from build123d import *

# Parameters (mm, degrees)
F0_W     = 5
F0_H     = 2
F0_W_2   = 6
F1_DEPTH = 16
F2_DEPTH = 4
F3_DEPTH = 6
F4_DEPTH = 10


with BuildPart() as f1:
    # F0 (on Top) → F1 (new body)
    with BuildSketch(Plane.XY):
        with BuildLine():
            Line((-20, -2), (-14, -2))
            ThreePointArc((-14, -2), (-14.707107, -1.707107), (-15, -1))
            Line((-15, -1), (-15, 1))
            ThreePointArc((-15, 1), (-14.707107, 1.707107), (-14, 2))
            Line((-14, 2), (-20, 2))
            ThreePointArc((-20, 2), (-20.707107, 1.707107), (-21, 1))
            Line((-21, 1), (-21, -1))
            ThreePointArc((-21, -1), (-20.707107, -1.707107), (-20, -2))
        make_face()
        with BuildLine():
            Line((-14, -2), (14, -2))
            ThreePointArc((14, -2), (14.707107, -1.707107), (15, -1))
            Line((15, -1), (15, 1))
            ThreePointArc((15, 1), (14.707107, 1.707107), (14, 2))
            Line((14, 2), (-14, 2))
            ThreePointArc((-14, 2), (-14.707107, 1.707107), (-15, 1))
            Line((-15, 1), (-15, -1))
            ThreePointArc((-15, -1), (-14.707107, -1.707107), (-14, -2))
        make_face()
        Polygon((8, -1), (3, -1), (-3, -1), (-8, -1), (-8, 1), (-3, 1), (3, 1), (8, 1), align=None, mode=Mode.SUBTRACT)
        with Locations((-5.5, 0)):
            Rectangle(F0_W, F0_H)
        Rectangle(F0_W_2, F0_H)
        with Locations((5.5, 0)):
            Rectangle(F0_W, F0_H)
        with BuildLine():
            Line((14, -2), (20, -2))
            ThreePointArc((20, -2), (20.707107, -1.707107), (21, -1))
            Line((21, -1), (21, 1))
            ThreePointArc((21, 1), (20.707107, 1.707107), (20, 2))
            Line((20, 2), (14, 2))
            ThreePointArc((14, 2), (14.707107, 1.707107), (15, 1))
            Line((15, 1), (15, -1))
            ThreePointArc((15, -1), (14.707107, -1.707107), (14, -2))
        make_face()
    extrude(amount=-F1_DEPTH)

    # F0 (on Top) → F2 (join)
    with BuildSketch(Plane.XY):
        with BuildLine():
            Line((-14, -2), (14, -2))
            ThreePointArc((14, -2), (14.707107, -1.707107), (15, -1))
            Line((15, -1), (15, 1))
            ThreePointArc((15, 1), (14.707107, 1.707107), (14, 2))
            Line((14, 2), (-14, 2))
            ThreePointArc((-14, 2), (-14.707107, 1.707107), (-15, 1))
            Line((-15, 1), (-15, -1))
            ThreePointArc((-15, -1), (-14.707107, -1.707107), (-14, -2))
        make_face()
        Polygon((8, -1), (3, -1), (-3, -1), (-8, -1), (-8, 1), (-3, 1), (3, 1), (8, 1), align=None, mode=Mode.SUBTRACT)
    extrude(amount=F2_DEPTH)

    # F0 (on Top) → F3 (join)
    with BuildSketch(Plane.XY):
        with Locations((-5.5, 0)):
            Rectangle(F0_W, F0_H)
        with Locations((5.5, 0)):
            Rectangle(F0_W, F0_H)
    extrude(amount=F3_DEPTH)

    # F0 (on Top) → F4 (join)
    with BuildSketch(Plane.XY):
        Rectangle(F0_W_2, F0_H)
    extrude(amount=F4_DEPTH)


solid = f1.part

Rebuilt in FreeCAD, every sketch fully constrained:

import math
import FreeCAD as App
import Part
import Sketcher
from FreeCAD import Vector

doc = App.newDocument("Part")
body = doc.addObject("PartDesign::Body", "Body")

sketch1 = body.newObject("Sketcher::SketchObject", "Sketch")
sketch1.AttachmentSupport = (doc.getObject("XY_Plane"), [""])
sketch1.MapMode = "FlatFace"
sketch1.addGeometry(Part.LineSegment(Vector(-20, -2, 0), Vector(20, -2, 0)), False)
sketch1.addGeometry(Part.ArcOfCircle(Part.Circle(Vector(20, -1, 0), Vector(0, 0, 1), 1), math.radians(-90), math.radians(0)), False)
sketch1.addGeometry(Part.LineSegment(Vector(21, -1, 0), Vector(21, 1, 0)), False)
sketch1.addGeometry(Part.ArcOfCircle(Part.Circle(Vector(20, 1, 0), Vector(0, 0, 1), 1), math.radians(0), math.radians(90)), False)
sketch1.addGeometry(Part.LineSegment(Vector(20, 2, 0), Vector(-20, 2, 0)), False)
sketch1.addGeometry(Part.ArcOfCircle(Part.Circle(Vector(-20, 1, 0), Vector(0, 0, 1), 1), math.radians(90), math.radians(180)), False)
sketch1.addGeometry(Part.LineSegment(Vector(-21, 1, 0), Vector(-21, -1, 0)), False)
sketch1.addGeometry(Part.ArcOfCircle(Part.Circle(Vector(-20, -1, 0), Vector(0, 0, 1), 1), math.radians(180), math.radians(270)), False)
sketch1.addConstraint(Sketcher.Constraint("Tangent", 0, 2, 1, 1))
sketch1.addConstraint(Sketcher.Constraint("Tangent", 1, 2, 2, 1))
sketch1.addConstraint(Sketcher.Constraint("Tangent", 2, 2, 3, 1))
sketch1.addConstraint(Sketcher.Constraint("Tangent", 3, 2, 4, 1))
sketch1.addConstraint(Sketcher.Constraint("Tangent", 4, 2, 5, 1))
sketch1.addConstraint(Sketcher.Constraint("Tangent", 5, 2, 6, 1))
sketch1.addConstraint(Sketcher.Constraint("Tangent", 6, 2, 7, 1))
sketch1.addConstraint(Sketcher.Constraint("Tangent", 7, 2, 0, 1))
sketch1.addConstraint(Sketcher.Constraint("Horizontal", 0))
sketch1.addConstraint(Sketcher.Constraint("Vertical", 2))
sketch1.addConstraint(Sketcher.Constraint("Horizontal", 4))
sketch1.addConstraint(Sketcher.Constraint("Vertical", 6))
sketch1.addConstraint(Sketcher.Constraint("Equal", 1, 3))
sketch1.addConstraint(Sketcher.Constraint("Equal", 3, 5))
sketch1.addConstraint(Sketcher.Constraint("Equal", 5, 7))
sketch1.addConstraint(Sketcher.Constraint("Symmetric", 1, 3, 5, 3, -1, 1))
sketch1.addConstraint(Sketcher.Constraint("Radius", 1, 0.999999))
sketch1.addConstraint(Sketcher.Constraint("DistanceX", 0, 1, 0, 2, 40.0))
sketch1.addConstraint(Sketcher.Constraint("DistanceY", 2, 1, 2, 2, 2.0))
pad1 = body.newObject("PartDesign::Pad", "Pad")
pad1.Profile = sketch1
pad1.Length = 16
pad1.Reversed = True

sketch2 = body.newObject("Sketcher::SketchObject", "Sketch001")
sketch2.AttachmentSupport = (doc.getObject("XY_Plane"), [""])
sketch2.MapMode = "FlatFace"
sketch2.addGeometry(Part.LineSegment(Vector(-14, -2, 0), Vector(14, -2, 0)), False)
sketch2.addGeometry(Part.ArcOfCircle(Part.Circle(Vector(14, -1, 0), Vector(0, 0, 1), 1), math.radians(-90), math.radians(0)), False)
sketch2.addGeometry(Part.LineSegment(Vector(15, -1, 0), Vector(15, 1, 0)), False)
sketch2.addGeometry(Part.ArcOfCircle(Part.Circle(Vector(14, 1, 0), Vector(0, 0, 1), 1), math.radians(0), math.radians(90)), False)
sketch2.addGeometry(Part.LineSegment(Vector(14, 2, 0), Vector(-14, 2, 0)), False)
sketch2.addGeometry(Part.ArcOfCircle(Part.Circle(Vector(-14, 1, 0), Vector(0, 0, 1), 1), math.radians(90), math.radians(180)), False)
sketch2.addGeometry(Part.LineSegment(Vector(-15, 1, 0), Vector(-15, -1, 0)), False)
sketch2.addGeometry(Part.ArcOfCircle(Part.Circle(Vector(-14, -1, 0), Vector(0, 0, 1), 1), math.radians(180), math.radians(270)), False)
sketch2.addGeometry(Part.LineSegment(Vector(8, 1, 0), Vector(8, -1, 0)), False)
sketch2.addGeometry(Part.LineSegment(Vector(8, -1, 0), Vector(-8, -1, 0)), False)
sketch2.addGeometry(Part.LineSegment(Vector(-8, -1, 0), Vector(-8, 1, 0)), False)
sketch2.addGeometry(Part.LineSegment(Vector(-8, 1, 0), Vector(8, 1, 0)), False)
sketch2.addConstraint(Sketcher.Constraint("Tangent", 0, 2, 1, 1))
sketch2.addConstraint(Sketcher.Constraint("Tangent", 1, 2, 2, 1))
sketch2.addConstraint(Sketcher.Constraint("Tangent", 2, 2, 3, 1))
sketch2.addConstraint(Sketcher.Constraint("Tangent", 3, 2, 4, 1))
sketch2.addConstraint(Sketcher.Constraint("Tangent", 4, 2, 5, 1))
sketch2.addConstraint(Sketcher.Constraint("Tangent", 5, 2, 6, 1))
sketch2.addConstraint(Sketcher.Constraint("Tangent", 6, 2, 7, 1))
sketch2.addConstraint(Sketcher.Constraint("Tangent", 7, 2, 0, 1))
sketch2.addConstraint(Sketcher.Constraint("Coincident", 8, 2, 9, 1))
sketch2.addConstraint(Sketcher.Constraint("Coincident", 9, 2, 10, 1))
sketch2.addConstraint(Sketcher.Constraint("Coincident", 10, 2, 11, 1))
sketch2.addConstraint(Sketcher.Constraint("Coincident", 11, 2, 8, 1))
sketch2.addConstraint(Sketcher.Constraint("Horizontal", 0))
sketch2.addConstraint(Sketcher.Constraint("Vertical", 2))
sketch2.addConstraint(Sketcher.Constraint("Horizontal", 4))
sketch2.addConstraint(Sketcher.Constraint("Vertical", 6))
sketch2.addConstraint(Sketcher.Constraint("Vertical", 8))
sketch2.addConstraint(Sketcher.Constraint("Horizontal", 9))
sketch2.addConstraint(Sketcher.Constraint("Vertical", 10))
sketch2.addConstraint(Sketcher.Constraint("Horizontal", 11))
sketch2.addConstraint(Sketcher.Constraint("Equal", 1, 3))
sketch2.addConstraint(Sketcher.Constraint("Equal", 3, 5))
sketch2.addConstraint(Sketcher.Constraint("Equal", 5, 7))
sketch2.addConstraint(Sketcher.Constraint("Symmetric", 1, 3, 5, 3, -1, 1))
sketch2.addConstraint(Sketcher.Constraint("Symmetric", 8, 2, 10, 2, -1, 1))
sketch2.addConstraint(Sketcher.Constraint("Horizontal", 6, 2, 8, 2))
sketch2.addConstraint(Sketcher.Constraint("Radius", 1, 0.999999))
sketch2.addConstraint(Sketcher.Constraint("DistanceX", 0, 1, 0, 2, 28.0))
sketch2.addConstraint(Sketcher.Constraint("DistanceX", 9, 2, 9, 1, 16.0))
sketch2.addConstraint(Sketcher.Constraint("DistanceY", 2, 1, 2, 2, 2.0))
pad2 = body.newObject("PartDesign::Pad", "Pad001")
pad2.Profile = sketch2
pad2.Length = 4

sketch3 = body.newObject("Sketcher::SketchObject", "Sketch002")
sketch3.AttachmentSupport = (doc.getObject("XY_Plane"), [""])
sketch3.MapMode = "FlatFace"
sketch3.addGeometry(Part.LineSegment(Vector(-8, 1, 0), Vector(-8, -1, 0)), False)
sketch3.addGeometry(Part.LineSegment(Vector(-8, -1, 0), Vector(-3, -1, 0)), False)
sketch3.addGeometry(Part.LineSegment(Vector(-3, -1, 0), Vector(-3, 1, 0)), False)
sketch3.addGeometry(Part.LineSegment(Vector(-3, 1, 0), Vector(-8, 1, 0)), False)
sketch3.addGeometry(Part.LineSegment(Vector(3, 1, 0), Vector(3, -1, 0)), False)
sketch3.addGeometry(Part.LineSegment(Vector(3, -1, 0), Vector(8, -1, 0)), False)
sketch3.addGeometry(Part.LineSegment(Vector(8, -1, 0), Vector(8, 1, 0)), False)
sketch3.addGeometry(Part.LineSegment(Vector(8, 1, 0), Vector(3, 1, 0)), False)
sketch3.addConstraint(Sketcher.Constraint("Coincident", 0, 2, 1, 1))
sketch3.addConstraint(Sketcher.Constraint("Coincident", 1, 2, 2, 1))
sketch3.addConstraint(Sketcher.Constraint("Coincident", 2, 2, 3, 1))
sketch3.addConstraint(Sketcher.Constraint("Coincident", 3, 2, 0, 1))
sketch3.addConstraint(Sketcher.Constraint("Coincident", 4, 2, 5, 1))
sketch3.addConstraint(Sketcher.Constraint("Coincident", 5, 2, 6, 1))
sketch3.addConstraint(Sketcher.Constraint("Coincident", 6, 2, 7, 1))
sketch3.addConstraint(Sketcher.Constraint("Coincident", 7, 2, 4, 1))
sketch3.addConstraint(Sketcher.Constraint("Vertical", 0))
sketch3.addConstraint(Sketcher.Constraint("Horizontal", 1))
sketch3.addConstraint(Sketcher.Constraint("Vertical", 2))
sketch3.addConstraint(Sketcher.Constraint("Horizontal", 3))
sketch3.addConstraint(Sketcher.Constraint("Vertical", 4))
sketch3.addConstraint(Sketcher.Constraint("Horizontal", 5))
sketch3.addConstraint(Sketcher.Constraint("Vertical", 6))
sketch3.addConstraint(Sketcher.Constraint("Horizontal", 7))
sketch3.addConstraint(Sketcher.Constraint("Symmetric", 2, 2, 4, 2, -1, 1))
sketch3.addConstraint(Sketcher.Constraint("Symmetric", 0, 2, 6, 2, -1, 1))
sketch3.addConstraint(Sketcher.Constraint("Horizontal", 1, 2, 4, 2))
sketch3.addConstraint(Sketcher.Constraint("DistanceX", 1, 1, 1, 2, 5.0))
sketch3.addConstraint(Sketcher.Constraint("DistanceY", 0, 2, 0, 1, 2.0))
sketch3.addConstraint(Sketcher.Constraint("DistanceX", 0, 2, -1, 1, 8.0))
pad3 = body.newObject("PartDesign::Pad", "Pad002")
pad3.Profile = sketch3
pad3.Length = 6

sketch4 = body.newObject("Sketcher::SketchObject", "Sketch003")
sketch4.AttachmentSupport = (doc.getObject("XY_Plane"), [""])
sketch4.MapMode = "FlatFace"
sketch4.addGeometry(Part.LineSegment(Vector(-3, 1, 0), Vector(-3, -1, 0)), False)
sketch4.addGeometry(Part.LineSegment(Vector(-3, -1, 0), Vector(3, -1, 0)), False)
sketch4.addGeometry(Part.LineSegment(Vector(3, -1, 0), Vector(3, 1, 0)), False)
sketch4.addGeometry(Part.LineSegment(Vector(3, 1, 0), Vector(-3, 1, 0)), False)
sketch4.addConstraint(Sketcher.Constraint("Coincident", 0, 2, 1, 1))
sketch4.addConstraint(Sketcher.Constraint("Coincident", 1, 2, 2, 1))
sketch4.addConstraint(Sketcher.Constraint("Coincident", 2, 2, 3, 1))
sketch4.addConstraint(Sketcher.Constraint("Coincident", 3, 2, 0, 1))
sketch4.addConstraint(Sketcher.Constraint("Vertical", 0))
sketch4.addConstraint(Sketcher.Constraint("Horizontal", 1))
sketch4.addConstraint(Sketcher.Constraint("Vertical", 2))
sketch4.addConstraint(Sketcher.Constraint("Horizontal", 3))
sketch4.addConstraint(Sketcher.Constraint("Symmetric", 0, 2, 2, 2, -1, 1))
sketch4.addConstraint(Sketcher.Constraint("DistanceX", 1, 1, 1, 2, 6.0))
sketch4.addConstraint(Sketcher.Constraint("DistanceY", 0, 2, 0, 1, 2.0))
pad4 = body.newObject("PartDesign::Pad", "Pad003")
pad4.Profile = sketch4
pad4.Length = 10

doc.recompute()
